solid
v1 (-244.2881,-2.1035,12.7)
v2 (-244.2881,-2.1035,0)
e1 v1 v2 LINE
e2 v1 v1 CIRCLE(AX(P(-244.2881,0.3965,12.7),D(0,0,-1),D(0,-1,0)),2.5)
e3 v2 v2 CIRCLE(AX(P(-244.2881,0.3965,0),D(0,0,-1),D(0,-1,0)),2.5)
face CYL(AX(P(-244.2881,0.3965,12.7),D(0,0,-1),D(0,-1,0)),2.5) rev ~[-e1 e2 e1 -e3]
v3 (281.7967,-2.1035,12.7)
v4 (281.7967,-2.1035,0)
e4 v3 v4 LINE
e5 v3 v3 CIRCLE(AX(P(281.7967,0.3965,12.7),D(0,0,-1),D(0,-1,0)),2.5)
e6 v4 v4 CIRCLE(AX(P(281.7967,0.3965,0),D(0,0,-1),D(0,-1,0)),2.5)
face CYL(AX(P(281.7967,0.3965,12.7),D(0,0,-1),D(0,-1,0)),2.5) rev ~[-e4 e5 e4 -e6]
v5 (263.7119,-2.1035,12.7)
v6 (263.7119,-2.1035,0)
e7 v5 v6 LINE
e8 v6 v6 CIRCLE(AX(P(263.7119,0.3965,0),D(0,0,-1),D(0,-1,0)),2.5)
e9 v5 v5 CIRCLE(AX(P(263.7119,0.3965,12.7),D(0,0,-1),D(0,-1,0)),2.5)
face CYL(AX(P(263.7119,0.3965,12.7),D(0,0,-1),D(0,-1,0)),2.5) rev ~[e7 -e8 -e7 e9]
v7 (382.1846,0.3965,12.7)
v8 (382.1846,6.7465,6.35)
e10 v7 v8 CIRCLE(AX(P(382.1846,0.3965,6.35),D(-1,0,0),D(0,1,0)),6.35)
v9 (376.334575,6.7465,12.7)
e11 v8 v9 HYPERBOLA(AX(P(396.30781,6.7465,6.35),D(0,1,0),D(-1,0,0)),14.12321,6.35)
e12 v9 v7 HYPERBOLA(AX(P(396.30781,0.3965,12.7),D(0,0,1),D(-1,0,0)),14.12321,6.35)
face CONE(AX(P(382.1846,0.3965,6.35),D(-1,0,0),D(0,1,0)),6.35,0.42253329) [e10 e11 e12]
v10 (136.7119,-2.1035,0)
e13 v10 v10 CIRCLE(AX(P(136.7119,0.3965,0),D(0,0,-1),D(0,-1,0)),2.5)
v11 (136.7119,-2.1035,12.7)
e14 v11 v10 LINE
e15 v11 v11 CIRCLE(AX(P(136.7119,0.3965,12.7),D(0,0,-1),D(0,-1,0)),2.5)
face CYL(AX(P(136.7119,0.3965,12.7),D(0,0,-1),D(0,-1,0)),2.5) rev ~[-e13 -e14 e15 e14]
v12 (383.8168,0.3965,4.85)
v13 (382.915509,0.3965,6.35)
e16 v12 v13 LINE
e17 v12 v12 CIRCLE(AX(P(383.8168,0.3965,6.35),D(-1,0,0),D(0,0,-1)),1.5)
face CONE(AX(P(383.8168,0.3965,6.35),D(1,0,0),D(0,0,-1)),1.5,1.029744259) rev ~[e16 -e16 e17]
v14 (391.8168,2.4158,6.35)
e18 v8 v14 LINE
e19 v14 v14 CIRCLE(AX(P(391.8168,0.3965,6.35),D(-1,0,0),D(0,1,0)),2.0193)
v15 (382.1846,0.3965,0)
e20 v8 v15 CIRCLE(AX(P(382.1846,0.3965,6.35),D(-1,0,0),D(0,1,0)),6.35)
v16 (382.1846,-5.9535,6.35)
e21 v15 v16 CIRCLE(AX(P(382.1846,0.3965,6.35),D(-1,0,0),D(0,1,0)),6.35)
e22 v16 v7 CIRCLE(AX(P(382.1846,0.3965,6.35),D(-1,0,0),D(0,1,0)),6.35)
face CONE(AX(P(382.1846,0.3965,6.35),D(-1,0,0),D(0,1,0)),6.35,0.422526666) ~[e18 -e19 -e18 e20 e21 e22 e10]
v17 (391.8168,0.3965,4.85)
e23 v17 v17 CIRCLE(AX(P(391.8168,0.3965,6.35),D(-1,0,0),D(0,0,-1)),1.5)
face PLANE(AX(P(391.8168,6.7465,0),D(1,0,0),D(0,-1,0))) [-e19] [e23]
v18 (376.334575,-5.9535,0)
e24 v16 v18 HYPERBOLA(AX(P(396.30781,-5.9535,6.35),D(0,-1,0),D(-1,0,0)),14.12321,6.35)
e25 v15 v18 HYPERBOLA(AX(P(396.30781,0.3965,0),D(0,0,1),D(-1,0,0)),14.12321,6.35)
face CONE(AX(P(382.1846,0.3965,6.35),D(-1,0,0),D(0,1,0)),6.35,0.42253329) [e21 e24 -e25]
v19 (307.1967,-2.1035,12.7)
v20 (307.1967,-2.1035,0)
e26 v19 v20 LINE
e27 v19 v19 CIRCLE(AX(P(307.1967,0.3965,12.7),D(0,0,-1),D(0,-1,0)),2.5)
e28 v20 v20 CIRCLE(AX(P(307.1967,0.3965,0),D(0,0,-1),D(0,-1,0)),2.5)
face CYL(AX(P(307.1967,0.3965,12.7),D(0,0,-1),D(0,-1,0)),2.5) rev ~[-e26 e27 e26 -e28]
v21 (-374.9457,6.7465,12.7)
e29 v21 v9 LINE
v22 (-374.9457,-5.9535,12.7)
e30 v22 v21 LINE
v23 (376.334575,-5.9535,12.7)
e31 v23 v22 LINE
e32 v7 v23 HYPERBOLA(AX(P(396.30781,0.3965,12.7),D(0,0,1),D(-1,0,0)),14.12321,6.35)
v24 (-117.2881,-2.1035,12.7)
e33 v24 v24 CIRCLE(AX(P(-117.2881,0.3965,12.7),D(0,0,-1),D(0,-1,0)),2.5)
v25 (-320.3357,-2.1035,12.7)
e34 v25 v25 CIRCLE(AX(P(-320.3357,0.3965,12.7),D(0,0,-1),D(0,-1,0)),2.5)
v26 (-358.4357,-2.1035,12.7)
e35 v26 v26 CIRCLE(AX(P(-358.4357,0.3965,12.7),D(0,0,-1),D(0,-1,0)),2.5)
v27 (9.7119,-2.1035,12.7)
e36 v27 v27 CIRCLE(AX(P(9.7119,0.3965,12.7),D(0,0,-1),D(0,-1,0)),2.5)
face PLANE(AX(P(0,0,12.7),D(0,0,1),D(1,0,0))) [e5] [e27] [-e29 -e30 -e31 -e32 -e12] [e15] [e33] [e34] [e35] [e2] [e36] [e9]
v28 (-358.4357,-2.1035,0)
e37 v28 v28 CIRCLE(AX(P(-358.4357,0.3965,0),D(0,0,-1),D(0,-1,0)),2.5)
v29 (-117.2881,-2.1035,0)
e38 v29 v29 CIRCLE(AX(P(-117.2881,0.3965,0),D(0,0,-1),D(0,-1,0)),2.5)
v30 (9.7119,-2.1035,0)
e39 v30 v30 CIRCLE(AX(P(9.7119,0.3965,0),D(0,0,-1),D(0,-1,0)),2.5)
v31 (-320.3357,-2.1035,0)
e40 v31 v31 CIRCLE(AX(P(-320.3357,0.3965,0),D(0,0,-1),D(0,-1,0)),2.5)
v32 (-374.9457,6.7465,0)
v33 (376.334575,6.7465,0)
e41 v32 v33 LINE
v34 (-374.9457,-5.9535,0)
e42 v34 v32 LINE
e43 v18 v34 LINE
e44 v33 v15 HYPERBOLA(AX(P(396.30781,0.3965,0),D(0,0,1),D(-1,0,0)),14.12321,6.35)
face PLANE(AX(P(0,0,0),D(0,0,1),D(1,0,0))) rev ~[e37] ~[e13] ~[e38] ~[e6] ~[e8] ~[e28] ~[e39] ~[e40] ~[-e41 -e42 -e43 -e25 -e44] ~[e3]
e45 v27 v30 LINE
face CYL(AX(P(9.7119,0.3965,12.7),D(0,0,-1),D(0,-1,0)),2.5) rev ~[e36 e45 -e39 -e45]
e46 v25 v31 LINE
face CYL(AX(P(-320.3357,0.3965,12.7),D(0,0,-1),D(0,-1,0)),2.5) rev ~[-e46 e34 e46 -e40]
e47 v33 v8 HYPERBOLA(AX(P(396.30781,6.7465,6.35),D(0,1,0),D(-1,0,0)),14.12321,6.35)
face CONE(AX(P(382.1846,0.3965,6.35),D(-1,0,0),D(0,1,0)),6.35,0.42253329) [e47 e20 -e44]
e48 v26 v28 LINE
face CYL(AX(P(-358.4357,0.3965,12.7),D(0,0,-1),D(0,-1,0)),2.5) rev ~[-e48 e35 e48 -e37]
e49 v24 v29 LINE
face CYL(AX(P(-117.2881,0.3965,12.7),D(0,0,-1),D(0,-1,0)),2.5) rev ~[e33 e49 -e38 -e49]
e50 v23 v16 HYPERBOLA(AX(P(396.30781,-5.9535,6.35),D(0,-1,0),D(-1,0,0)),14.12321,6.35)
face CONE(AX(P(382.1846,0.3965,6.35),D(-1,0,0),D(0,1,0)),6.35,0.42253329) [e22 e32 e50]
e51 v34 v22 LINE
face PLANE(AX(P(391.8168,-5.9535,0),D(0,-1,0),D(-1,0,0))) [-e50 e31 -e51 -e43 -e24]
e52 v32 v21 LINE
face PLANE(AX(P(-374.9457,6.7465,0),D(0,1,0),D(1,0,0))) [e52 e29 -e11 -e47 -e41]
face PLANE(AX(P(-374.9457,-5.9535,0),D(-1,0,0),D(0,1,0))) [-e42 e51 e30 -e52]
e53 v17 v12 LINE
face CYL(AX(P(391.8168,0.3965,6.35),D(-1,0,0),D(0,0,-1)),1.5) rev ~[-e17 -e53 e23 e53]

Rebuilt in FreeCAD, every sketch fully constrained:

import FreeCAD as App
import Part
import Sketcher
Q = App.Units.Quantity

doc = App.newDocument("Part")
body = doc.addObject("PartDesign::Body", "Body")

# Sketch on XY plane
sketch1 = body.newObject("Sketcher::SketchObject", "Sketch")
sketch1.AttachmentSupport = (doc.getObject("XY_Plane"), [""])
sketch1.MapMode = "FlatFace"
sketch1.addGeometry(Part.LineSegment(App.Vector(391.8168, 6.7465, 0), App.Vector(-374.9457, 6.7465, 0)), False)
sketch1.addGeometry(Part.LineSegment(App.Vector(-374.9457, 6.7465, 0), App.Vector(-374.9457, -5.9535, 0)), False)
sketch1.addGeometry(Part.LineSegment(App.Vector(-374.9457, -5.9535, 0), App.Vector(391.8168, -5.9535, 0)), False)
sketch1.addGeometry(Part.LineSegment(App.Vector(391.8168, -5.9535, 0), App.Vector(391.8168, 6.7465, 0)), False)
sketch1.addConstraint(Sketcher.Constraint("Coincident", 0, 2, 1, 1))
sketch1.addConstraint(Sketcher.Constraint("Coincident", 1, 2, 2, 1))
sketch1.addConstraint(Sketcher.Constraint("Coincident", 2, 2, 3, 1))
sketch1.addConstraint(Sketcher.Constraint("Coincident", 3, 2, 0, 1))
sketch1.addConstraint(Sketcher.Constraint("Horizontal", 0))
sketch1.addConstraint(Sketcher.Constraint("Vertical", 1))
sketch1.addConstraint(Sketcher.Constraint("Horizontal", 2))
sketch1.addConstraint(Sketcher.Constraint("Vertical", 3))
sketch1.addConstraint(Sketcher.Constraint("DistanceY", 1, 2, 1, 1, Q("12.7 mm")))
sketch1.addConstraint(Sketcher.Constraint("DistanceX", 0, 2, 0, 1, Q("766.7625 mm")))
sketch1.addConstraint(Sketcher.Constraint("DistanceX", 0, 2, -1, 1, Q("374.9457 mm")))
sketch1.addConstraint(Sketcher.Constraint("DistanceY", -1, 1, 0, 2, Q("6.7465 mm")))
pad1 = body.newObject("PartDesign::Pad", "Pad")
pad1.Profile = sketch1
pad1.Length = 12.7

# Sketch on XY plane
sketch2 = body.newObject("Sketcher::SketchObject", "Sketch001")
sketch2.AttachmentSupport = (doc.getObject("XY_Plane"), [""])
sketch2.MapMode = "FlatFace"
sketch2.AttachmentOffset = App.Placement(App.Vector(0, 0, 12.7), App.Rotation())
sketch2.addGeometry(Part.Circle(App.Vector(-358.4357, 0.3965, 0), App.Vector(0, 0, 1), 2.5), False)
sketch2.addConstraint(Sketcher.Constraint("Diameter", 0, Q("5 mm")))
sketch2.addConstraint(Sketcher.Constraint("DistanceX", 0, 3, -1, 1, Q("358.4357 mm")))
sketch2.addConstraint(Sketcher.Constraint("DistanceY", -1, 1, 0, 3, Q("0.3965 mm")))
doc.recompute()
hole = body.newObject("PartDesign::Hole", "Hole")
hole.Profile = sketch2
hole.ThreadType = "None"
hole.Diameter = 5
hole.DepthType = "ThroughAll"

# Sketch on XY plane
sketch3 = body.newObject("Sketcher::SketchObject", "Sketch002")
sketch3.AttachmentSupport = (doc.getObject("XY_Plane"), [""])
sketch3.MapMode = "FlatFace"
sketch3.AttachmentOffset = App.Placement(App.Vector(0, 0, 12.7), App.Rotation())
sketch3.addGeometry(Part.Circle(App.Vector(-320.3357, 0.3965, 0), App.Vector(0, 0, 1), 2.5), False)
sketch3.addConstraint(Sketcher.Constraint("Diameter", 0, Q("5 mm")))
sketch3.addConstraint(Sketcher.Constraint("DistanceX", 0, 3, -1, 1, Q("320.3357 mm")))
sketch3.addConstraint(Sketcher.Constraint("DistanceY", -1, 1, 0, 3, Q("0.3965 mm")))
doc.recompute()
hole2 = body.newObject("PartDesign::Hole", "Hole001")
hole2.Profile = sketch3
hole2.ThreadType = "None"
hole2.Diameter = 5
hole2.DepthType = "ThroughAll"

# Sketch on XY plane
sketch4 = body.newObject("Sketcher::SketchObject", "Sketch003")
sketch4.AttachmentSupport = (doc.getObject("XY_Plane"), [""])
sketch4.MapMode = "FlatFace"
sketch4.AttachmentOffset = App.Placement(App.Vector(0, 0, 12.7), App.Rotation())
sketch4.addGeometry(Part.Circle(App.Vector(-244.2881, 0.3965, 0), App.Vector(0, 0, 1), 2.5), False)
sketch4.addConstraint(Sketcher.Constraint("Diameter", 0, Q("5 mm")))
sketch4.addConstraint(Sketcher.Constraint("DistanceX", 0, 3, -1, 1, Q("244.288 mm")))
sketch4.addConstraint(Sketcher.Constraint("DistanceY", -1, 1, 0, 3, Q("0.3965 mm")))
doc.recompute()
hole3 = body.newObject("PartDesign::Hole", "Hole002")
hole3.Profile = sketch4
hole3.ThreadType = "None"
hole3.Diameter = 5
hole3.DepthType = "ThroughAll"

# Sketch on XY plane
sketch5 = body.newObject("Sketcher::SketchObject", "Sketch004")
sketch5.AttachmentSupport = (doc.getObject("XY_Plane"), [""])
sketch5.MapMode = "FlatFace"
sketch5.AttachmentOffset = App.Placement(App.Vector(0, 0, 12.7), App.Rotation())
sketch5.addGeometry(Part.Circle(App.Vector(-117.2881, 0.3965, 0), App.Vector(0, 0, 1), 2.5), False)
sketch5.addConstraint(Sketcher.Constraint("Diameter", 0, Q("5 mm")))
sketch5.addConstraint(Sketcher.Constraint("DistanceX", 0, 3, -1, 1, Q("117.288 mm")))
sketch5.addConstraint(Sketcher.Constraint("DistanceY", -1, 1, 0, 3, Q("0.3965 mm")))
doc.recompute()
hole4 = body.newObject("PartDesign::Hole", "Hole003")
hole4.Profile = sketch5
hole4.ThreadType = "None"
hole4.Diameter = 5
hole4.DepthType = "ThroughAll"

# Sketch on XY plane
sketch6 = body.newObject("Sketcher::SketchObject", "Sketch005")
sketch6.AttachmentSupport = (doc.getObject("XY_Plane"), [""])
sketch6.MapMode = "FlatFace"
sketch6.AttachmentOffset = App.Placement(App.Vector(0, 0, 12.7), App.Rotation())
sketch6.addGeometry(Part.Circle(App.Vector(9.7119, 0.3965, 0), App.Vector(0, 0, 1), 2.5), False)
sketch6.addConstraint(Sketcher.Constraint("Diameter", 0, Q("5 mm")))
sketch6.addConstraint(Sketcher.Constraint("DistanceX", -1, 1, 0, 3, Q("9.712 mm")))
sketch6.addConstraint(Sketcher.Constraint("DistanceY", -1, 1, 0, 3, Q("0.3965 mm")))
doc.recompute()
hole5 = body.newObject("PartDesign::Hole", "Hole004")
hole5.Profile = sketch6
hole5.ThreadType = "None"
hole5.Diameter = 5
hole5.DepthType = "ThroughAll"

# Sketch on XY plane
sketch7 = body.newObject("Sketcher::SketchObject", "Sketch006")
sketch7.AttachmentSupport = (doc.getObject("XY_Plane"), [""])
sketch7.MapMode = "FlatFace"
sketch7.AttachmentOffset = App.Placement(App.Vector(0, 0, 12.7), App.Rotation())
sketch7.addGeometry(Part.Circle(App.Vector(136.7119, 0.3965, 0), App.Vector(0, 0, 1), 2.5), False)
sketch7.addConstraint(Sketcher.Constraint("Diameter", 0, Q("5 mm")))
sketch7.addConstraint(Sketcher.Constraint("DistanceX", -1, 1, 0, 3, Q("136.712 mm")))
sketch7.addConstraint(Sketcher.Constraint("DistanceY", -1, 1, 0, 3, Q("0.3965 mm")))
doc.recompute()
hole6 = body.newObject("PartDesign::Hole", "Hole005")
hole6.Profile = sketch7
hole6.ThreadType = "None"
hole6.Diameter = 5
hole6.DepthType = "ThroughAll"

# Sketch on XY plane
sketch8 = body.newObject("Sketcher::SketchObject", "Sketch007")
sketch8.AttachmentSupport = (doc.getObject("XY_Plane"), [""])
sketch8.MapMode = "FlatFace"
sketch8.AttachmentOffset = App.Placement(App.Vector(0, 0, 12.7), App.Rotation())
sketch8.addGeometry(Part.Circle(App.Vector(263.7119, 0.3965, 0), App.Vector(0, 0, 1), 2.5), False)
sketch8.addConstraint(Sketcher.Constraint("Diameter", 0, Q("5 mm")))
sketch8.addConstraint(Sketcher.Constraint("DistanceX", -1, 1, 0, 3, Q("263.712 mm")))
sketch8.addConstraint(Sketcher.Constraint("DistanceY", -1, 1, 0, 3, Q("0.3965 mm")))
doc.recompute()
hole7 = body.newObject("PartDesign::Hole", "Hole006")
hole7.Profile = sketch8
hole7.ThreadType = "None"
hole7.Diameter = 5
hole7.DepthType = "ThroughAll"

# Sketch on XY plane
sketch9 = body.newObject("Sketcher::SketchObject", "Sketch008")
sketch9.AttachmentSupport = (doc.getObject("XY_Plane"), [""])
sketch9.MapMode = "FlatFace"
sketch9.AttachmentOffset = App.Placement(App.Vector(0, 0, 12.7), App.Rotation())
sketch9.addGeometry(Part.Circle(App.Vector(281.7967, 0.3965, 0), App.Vector(0, 0, 1), 2.5), False)
sketch9.addConstraint(Sketcher.Constraint("Diameter", 0, Q("5 mm")))
sketch9.addConstraint(Sketcher.Constraint("DistanceX", -1, 1, 0, 3, Q("281.7967 mm")))
sketch9.addConstraint(Sketcher.Constraint("DistanceY", -1, 1, 0, 3, Q("0.3965 mm")))
doc.recompute()
hole8 = body.newObject("PartDesign::Hole", "Hole007")
hole8.Profile = sketch9
hole8.ThreadType = "None"
hole8.Diameter = 5
hole8.DepthType = "ThroughAll"

# Sketch on XY plane
sketch10 = body.newObject("Sketcher::SketchObject", "Sketch009")
sketch10.AttachmentSupport = (doc.getObject("XY_Plane"), [""])
sketch10.MapMode = "FlatFace"
sketch10.AttachmentOffset = App.Placement(App.Vector(0, 0, 12.7), App.Rotation())
sketch10.addGeometry(Part.Circle(App.Vector(307.1967, 0.3965, 0), App.Vector(0, 0, 1), 2.5), False)
sketch10.addConstraint(Sketcher.Constraint("Diameter", 0, Q("5 mm")))
sketch10.addConstraint(Sketcher.Constraint("DistanceX", -1, 1, 0, 3, Q("307.1967 mm")))
sketch10.addConstraint(Sketcher.Constraint("DistanceY", -1, 1, 0, 3, Q("0.3965 mm")))
doc.recompute()
hole9 = body.newObject("PartDesign::Hole", "Hole008")
hole9.Profile = sketch10
hole9.ThreadType = "None"
hole9.Diameter = 5
hole9.DepthType = "ThroughAll"

# Sketch on YZ plane
sketch11 = body.newObject("Sketcher::SketchObject", "Sketch010")
sketch11.AttachmentSupport = (doc.getObject("YZ_Plane"), [""])
sketch11.MapMode = "FlatFace"
sketch11.AttachmentOffset = App.Placement(App.Vector(0, 0, 391.8168), App.Rotation())
sketch11.addGeometry(Part.Circle(App.Vector(0.3965, 6.35, 0), App.Vector(0, 0, 1), 1.5), False)
sketch11.addConstraint(Sketcher.Constraint("Diameter", 0, Q("3 mm")))
sketch11.addConstraint(Sketcher.Constraint("DistanceY", -1, 1, 0, 3, Q("6.35 mm")))
sketch11.addConstraint(Sketcher.Constraint("DistanceX", -1, 1, 0, 3, Q("0.3965 mm")))
doc.recompute()
hole10 = body.newObject("PartDesign::Hole", "Hole009")
hole10.Profile = sketch11
hole10.ThreadType = "None"
hole10.Diameter = 3
hole10.DepthType = "Dimension"
hole10.Depth = 8
hole10.DrillPoint = "Angled"
hole10.DrillPointAngle = 118

# Sketch on XY plane
sketch12 = body.newObject("Sketcher::SketchObject", "Sketch011")
sketch12.AttachmentSupport = (doc.getObject("XY_Plane"), [""])
sketch12.MapMode = "FlatFace"
sketch12.AttachmentOffset = App.Placement(App.Vector(0, 0, 6.35), App.Rotation())
sketch12.addGeometry(Part.LineSegment(App.Vector(391.8168, 2.4158, 0), App.Vector(391.8168, 9.4173, 0)), False)
sketch12.addGeometry(Part.LineSegment(App.Vector(391.8168, 9.4173, 0), App.Vector(376.2444, 9.4173, 0)), False)
sketch12.addGeometry(Part.LineSegment(App.Vector(376.2444, 9.4173, 0), App.Vector(382.1846, 6.7465, 0)), False)
sketch12.addGeometry(Part.LineSegment(App.Vector(382.1846, 6.7465, 0), App.Vector(391.8168, 2.4158, 0)), False)
sketch12.addGeometry(Part.LineSegment(App.Vector(391.8168, 0.3965, 0), App.Vector(376.2444, 0.3965, 0)), True)  # axis
sketch12.addConstraint(Sketcher.Constraint("Coincident", 0, 2, 1, 1))
sketch12.addConstraint(Sketcher.Constraint("Coincident", 1, 2, 2, 1))
sketch12.addConstraint(Sketcher.Constraint("Coincident", 2, 2, 3, 1))
sketch12.addConstraint(Sketcher.Constraint("Coincident", 3, 2, 0, 1))
sketch12.addConstraint(Sketcher.Constraint("Vertical", 0))
sketch12.addConstraint(Sketcher.Constraint("Horizontal", 1))
sketch12.addConstraint(Sketcher.Constraint("Horizontal", 4))
sketch12.addConstraint(Sketcher.Constraint("Parallel", 2, 3))
sketch12.addConstraint(Sketcher.Constraint("Vertical", 3, 2, 4, 1))
sketch12.addConstraint(Sketcher.Constraint("Vertical", 1, 2, 4, 2))
sketch12.addConstraint(Sketcher.Constraint("Angle", 2, Q("-24.2094 deg")))
sketch12.addConstraint(Sketcher.Constraint("DistanceY", 4, 1, 2, 2, Q("6.35 mm")))
sketch12.addConstraint(Sketcher.Constraint("Distance", 2, Q("6.513 mm")))
sketch12.addConstraint(Sketcher.Constraint("Distance", 3, Q("10.561 mm")))
sketch12.addConstraint(Sketcher.Constraint("DistanceX", -1, 1, 0, 2, Q("391.8168 mm")))
sketch12.addConstraint(Sketcher.Constraint("DistanceY", -1, 1, 0, 2, Q("9.4173 mm")))
groove = body.newObject("PartDesign::Groove", "Groove")
groove.Profile = sketch12
groove.ReferenceAxis = (sketch12, ["Axis0"])
groove.Angle = 360

doc.recompute()
